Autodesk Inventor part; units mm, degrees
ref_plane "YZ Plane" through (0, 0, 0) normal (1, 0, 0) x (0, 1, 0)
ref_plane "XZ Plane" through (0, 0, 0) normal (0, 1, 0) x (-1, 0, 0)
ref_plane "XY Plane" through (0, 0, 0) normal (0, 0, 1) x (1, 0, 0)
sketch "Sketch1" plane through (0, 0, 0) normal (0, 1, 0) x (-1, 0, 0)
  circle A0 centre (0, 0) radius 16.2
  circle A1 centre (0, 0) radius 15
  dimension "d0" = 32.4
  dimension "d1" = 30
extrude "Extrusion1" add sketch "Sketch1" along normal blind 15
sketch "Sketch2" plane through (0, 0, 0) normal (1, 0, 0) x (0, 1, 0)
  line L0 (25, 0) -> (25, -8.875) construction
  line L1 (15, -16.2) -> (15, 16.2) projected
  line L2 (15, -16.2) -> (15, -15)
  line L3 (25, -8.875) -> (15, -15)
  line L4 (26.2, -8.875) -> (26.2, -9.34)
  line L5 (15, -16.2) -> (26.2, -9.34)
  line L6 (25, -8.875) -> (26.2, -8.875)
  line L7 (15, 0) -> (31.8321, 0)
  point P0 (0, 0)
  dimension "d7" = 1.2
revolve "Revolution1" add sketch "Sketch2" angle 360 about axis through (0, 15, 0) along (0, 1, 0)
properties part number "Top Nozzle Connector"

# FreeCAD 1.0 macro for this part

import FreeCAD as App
import Part
import Sketcher
from FreeCAD import Vector
Q = App.Units.Quantity


def add_polygon(sketch, points):
    """Adds a closed chain of lines whose ends are joined by coincident constraints."""
    first, n = sketch.GeometryCount, len(points)
    for a, b in zip(points, points[1:] + points[:1]):
        sketch.addGeometry(Part.LineSegment(App.Vector(*a, 0), App.Vector(*b, 0)), False)
    for i in range(n):
        sketch.addConstraint(Sketcher.Constraint("Coincident", first + i, 2, first + (i + 1) % n, 1))

doc = App.newDocument("Part")
params = doc.addObject("Spreadsheet::Sheet", "Params")
for row, (alias, value) in enumerate([
    ("sketch1_diameter", "30 mm"),
    ("sketch1_diameter2", "32.4 mm"),
    ("pad1_length", "15 mm"),
    ("sketch2_width", "1.2 mm"),
    ("revolution_angle", "360 deg"),
], start=1):
    params.set(f"A{row}", alias)
    params.set(f"B{row}", "=" + value)
    params.setAlias(f"B{row}", alias)

body = doc.addObject("PartDesign::Body", "Body")

sketch1 = doc.addObject("Sketcher::SketchObject", "Sketch")
body.addObject(sketch1)
sketch1.AttachmentSupport = (doc.XZ_Plane, [""])
sketch1.MapMode = "FlatFace"
sketch1.addGeometry([
    Part.Circle(Vector(0, 0, 0), Vector(0, 0, 1), 16.2),
    Part.Circle(Vector(0, 0, 0), Vector(0, 0, 1), 15),
], False)
sketch1.addConstraint([
    Sketcher.Constraint("Coincident", 0, 3, -1, 1),
    Sketcher.Constraint("Coincident", 1, 3, -1, 1),
    Sketcher.Constraint("Diameter", 1, Q("30 mm")),
    Sketcher.Constraint("Diameter", 0, Q("32.4 mm")),
])
sketch1.setExpression("Constraints[2]", "Params.sketch1_diameter")
sketch1.setExpression("Constraints[3]", "Params.sketch1_diameter2")
pad1 = doc.addObject("PartDesign::Pad", "Pad")
body.addObject(pad1)
pad1.Profile = sketch1
pad1.setExpression("Length", "Params.pad1_length")
pad1.Reversed = True

sketch2 = doc.addObject("Sketcher::SketchObject", "Sketch001")
body.addObject(sketch2)
sketch2.AttachmentSupport = (doc.YZ_Plane, [""])
sketch2.MapMode = "FlatFace"
add_polygon(sketch2, [(15, -15), (15, -16.2), (26.2, -9.34), (26.2, -8.875), (25, -8.875)])
sketch2.addConstraint([
    Sketcher.Constraint("Vertical", 0),
    Sketcher.Constraint("Vertical", 2),
    Sketcher.Constraint("Horizontal", 3),
    Sketcher.Constraint("Parallel", 1, 4),
    Sketcher.Constraint("Equal", 3, 0),
    Sketcher.Constraint("DistanceX", 3, 2, 3, 1, Q("1.2 mm")),
    Sketcher.Constraint("DistanceX", -1, 1, 0, 2, Q("15 mm")),
    Sketcher.Constraint("DistanceX", -1, 1, 3, 2, Q("25 mm")),
    Sketcher.Constraint("DistanceY", 4, 2, -1, 1, Q("15 mm")),
    Sketcher.Constraint("DistanceY", 2, 1, 2, 2, Q("0.465 mm")),
])
sketch2.setExpression("Constraints[10]", "Params.sketch2_width")
revolution = doc.addObject("PartDesign::Revolution", "Revolution")
body.addObject(revolution)
revolution.Profile = sketch2
revolution.ReferenceAxis = (sketch2, ["H_Axis"])
revolution.setExpression("Angle", "Params.revolution_angle")

doc.recompute()
